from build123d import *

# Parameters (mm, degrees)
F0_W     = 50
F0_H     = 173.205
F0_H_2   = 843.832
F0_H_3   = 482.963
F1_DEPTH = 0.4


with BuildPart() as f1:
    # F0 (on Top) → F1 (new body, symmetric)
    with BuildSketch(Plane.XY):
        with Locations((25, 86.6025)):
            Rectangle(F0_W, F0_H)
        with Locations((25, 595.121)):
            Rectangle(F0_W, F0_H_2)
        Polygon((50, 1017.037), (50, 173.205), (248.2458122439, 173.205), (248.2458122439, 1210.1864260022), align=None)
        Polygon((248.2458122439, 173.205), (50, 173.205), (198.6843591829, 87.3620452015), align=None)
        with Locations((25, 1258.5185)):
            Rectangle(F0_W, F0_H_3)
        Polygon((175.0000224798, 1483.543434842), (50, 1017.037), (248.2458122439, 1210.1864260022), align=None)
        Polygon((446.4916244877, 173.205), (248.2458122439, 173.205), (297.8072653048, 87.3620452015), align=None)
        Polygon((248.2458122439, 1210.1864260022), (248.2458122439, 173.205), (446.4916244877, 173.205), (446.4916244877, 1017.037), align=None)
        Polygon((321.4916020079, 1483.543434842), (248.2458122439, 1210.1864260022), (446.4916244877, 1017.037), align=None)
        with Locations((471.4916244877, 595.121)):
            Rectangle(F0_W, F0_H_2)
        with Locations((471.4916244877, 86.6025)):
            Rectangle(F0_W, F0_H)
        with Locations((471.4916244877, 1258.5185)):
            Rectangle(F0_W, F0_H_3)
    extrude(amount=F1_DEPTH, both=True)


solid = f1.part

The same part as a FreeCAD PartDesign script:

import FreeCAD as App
import Part
import Sketcher
from FreeCAD import Vector
Q = App.Units.Quantity


def add_polygon(sketch, points):
    """Adds a closed chain of lines whose ends are joined by coincident constraints."""
    first, n = sketch.GeometryCount, len(points)
    for a, b in zip(points, points[1:] + points[:1]):
        sketch.addGeometry(Part.LineSegment(App.Vector(*a, 0), App.Vector(*b, 0)), False)
    for i in range(n):
        sketch.addConstraint(Sketcher.Constraint("Coincident", first + i, 2, first + (i + 1) % n, 1))

doc = App.newDocument("Part")
body = doc.addObject("PartDesign::Body", "Body")

# Sketch on XY plane
sketch1 = doc.addObject("Sketcher::SketchObject", "Sketch")
body.addObject(sketch1)
sketch1.AttachmentSupport = (doc.XY_Plane, [""])
sketch1.MapMode = "FlatFace"
add_polygon(sketch1, [(0, 0), (50, 0), (50, 173), (199, 87), (248, 173), (298, 87), (446, 173), (446, 0), (496, 0), (496, 1500), (446, 1500), (446, 1017), (321, 1484), (248, 1210), (175, 1484), (50, 1017), (50, 1500), (0, 1500)])  # lines 0-17
sketch1.addConstraint(Sketcher.Constraint("Horizontal", 0))
sketch1.addConstraint(Sketcher.Constraint("Vertical", 1))
sketch1.addConstraint(Sketcher.Constraint("Vertical", 6))
sketch1.addConstraint(Sketcher.Constraint("Horizontal", 7))
sketch1.addConstraint(Sketcher.Constraint("Vertical", 8))
sketch1.addConstraint(Sketcher.Constraint("Horizontal", 9))
sketch1.addConstraint(Sketcher.Constraint("Vertical", 10))
sketch1.addConstraint(Sketcher.Constraint("Vertical", 15))
sketch1.addConstraint(Sketcher.Constraint("Horizontal", 16))
sketch1.addConstraint(Sketcher.Constraint("Vertical", 17))
sketch1.addConstraint(Sketcher.Constraint("Coincident", 17, 2, -1, 1))
sketch1.addConstraint(Sketcher.Constraint("PointOnObject", 6, 2, -1))
sketch1.addConstraint(Sketcher.Constraint("Perpendicular", 2, 3))
sketch1.addConstraint(Sketcher.Constraint("Perpendicular", 4, 5))
sketch1.addConstraint(Sketcher.Constraint("Parallel", 11, 13))
sketch1.addConstraint(Sketcher.Constraint("Parallel", 12, 14))
sketch1.addConstraint(Sketcher.Constraint("Horizontal", 1, 2, 3, 2))
sketch1.addConstraint(Sketcher.Constraint("Horizontal", 2, 2, 4, 2))
sketch1.addConstraint(Sketcher.Constraint("Horizontal", 3, 2, 5, 2))
sketch1.addConstraint(Sketcher.Constraint("Horizontal", 11, 2, 13, 2))
sketch1.addConstraint(Sketcher.Constraint("Horizontal", 10, 2, 14, 2))
sketch1.addConstraint(Sketcher.Constraint("Horizontal", 9, 2, 15, 2))
sketch1.addConstraint(Sketcher.Constraint("Vertical", 6, 2, 9, 2))
sketch1.addConstraint(Sketcher.Constraint("Vertical", 3, 2, 12, 2))
sketch1.addConstraint(Sketcher.Constraint("Vertical", 1, 2, 14, 2))
sketch1.addConstraint(Sketcher.Constraint("Equal", 0, 7))
sketch1.addConstraint(Sketcher.Constraint("Equal", 3, 4))
sketch1.addConstraint(Sketcher.Constraint("DistanceX", 0, 1, 0, 2, 50.0))
sketch1.addConstraint(Sketcher.Constraint("DistanceY", 8, 1, 8, 2, 1500.0))
sketch1.addConstraint(Sketcher.Constraint("Angle", 2, Q("-30 deg")))
sketch1.addConstraint(Sketcher.Constraint("Angle", 11, Q("105 deg")))
sketch1.addConstraint(Sketcher.Constraint("Distance", 12, 283.0))
sketch1.addConstraint(Sketcher.Constraint("DistanceY", 1, 1, 1, 2, 173.205))
sketch1.addConstraint(Sketcher.Constraint("DistanceY", 10, 2, 10, 1, 482.963))
sketch1.addConstraint(Sketcher.Constraint("Distance", 11, 482.963))
pad1 = doc.addObject("PartDesign::Pad", "Pad")
body.addObject(pad1)
pad1.Profile = sketch1
pad1.Length = 0.8
pad1.Midplane = True

doc.recompute()
